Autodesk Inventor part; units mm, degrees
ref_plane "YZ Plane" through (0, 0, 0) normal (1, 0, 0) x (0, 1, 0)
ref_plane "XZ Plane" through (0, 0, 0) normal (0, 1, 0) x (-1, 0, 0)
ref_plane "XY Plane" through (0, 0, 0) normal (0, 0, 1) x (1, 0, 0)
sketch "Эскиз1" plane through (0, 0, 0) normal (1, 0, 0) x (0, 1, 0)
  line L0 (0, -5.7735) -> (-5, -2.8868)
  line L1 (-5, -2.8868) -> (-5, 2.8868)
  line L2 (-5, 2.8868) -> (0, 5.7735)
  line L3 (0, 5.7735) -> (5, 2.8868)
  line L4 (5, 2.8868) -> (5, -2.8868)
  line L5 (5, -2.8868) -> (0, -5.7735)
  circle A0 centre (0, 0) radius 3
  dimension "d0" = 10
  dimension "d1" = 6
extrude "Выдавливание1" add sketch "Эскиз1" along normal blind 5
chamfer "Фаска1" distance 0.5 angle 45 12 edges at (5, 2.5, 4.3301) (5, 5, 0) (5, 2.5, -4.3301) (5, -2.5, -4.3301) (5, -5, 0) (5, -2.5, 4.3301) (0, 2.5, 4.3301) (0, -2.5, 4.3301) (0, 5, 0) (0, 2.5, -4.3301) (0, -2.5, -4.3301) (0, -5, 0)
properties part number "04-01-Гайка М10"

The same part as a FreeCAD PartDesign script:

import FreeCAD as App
import Part
import Sketcher
from FreeCAD import Vector
Q = App.Units.Quantity


def edges_at(feature, points):
    """Names of the edges that pass closest to the given points."""
    edges = feature.Shape.Edges
    near = lambda p: min(range(len(edges)), key=lambda i: edges[i].distToShape(Part.Vertex(*p))[0])
    return sorted({f"Edge{near(p) + 1}" for p in points})

doc = App.newDocument("Part")
body = doc.addObject("PartDesign::Body", "Body")

# Sketch on YZ plane
sketch1 = doc.addObject("Sketcher::SketchObject", "Sketch")
body.addObject(sketch1)
sketch1.AttachmentSupport = (doc.YZ_Plane, [""])
sketch1.MapMode = "FlatFace"
sketch1.addGeometry([
    Part.LineSegment(Vector(-5, -2.9, 0), Vector(0, -5.8, 0)),  # 0
    Part.LineSegment(Vector(0, -5.8, 0), Vector(5, -2.9, 0)),  # 1
    Part.LineSegment(Vector(5, -2.9, 0), Vector(5, 2.9, 0)),  # 2
    Part.LineSegment(Vector(5, 2.9, 0), Vector(0, 5.8, 0)),  # 3
    Part.LineSegment(Vector(0, 5.8, 0), Vector(-5, 2.9, 0)),  # 4
    Part.LineSegment(Vector(-5, 2.9, 0), Vector(-5, -2.9, 0)),  # 5
    Part.Circle(Vector(0, 0, 0), Vector(0, 0, 1), 3),  # 6
], False)
sketch1.addConstraint([
    Sketcher.Constraint("Coincident", 0, 2, 1, 1),
    Sketcher.Constraint("Coincident", 1, 2, 2, 1),
    Sketcher.Constraint("Coincident", 2, 2, 3, 1),
    Sketcher.Constraint("Coincident", 3, 2, 4, 1),
    Sketcher.Constraint("Coincident", 4, 2, 5, 1),
    Sketcher.Constraint("Coincident", 5, 2, 0, 1),
    Sketcher.Constraint("Vertical", 2),
    Sketcher.Constraint("Vertical", 5),
    Sketcher.Constraint("Coincident", 6, 3, -1, 1),
    Sketcher.Constraint("Symmetric", 0, 2, 3, 2, -1, 1),
    Sketcher.Constraint("Symmetric", 1, 2, 4, 2, -1, 1),
    Sketcher.Constraint("PointOnObject", 0, 2, -2),
    Sketcher.Constraint("Parallel", 0, 3),
    Sketcher.Constraint("Horizontal", 2, 2, 4, 2),
    Sketcher.Constraint("Diameter", 6, Q("6 mm")),
    Sketcher.Constraint("DistanceX", 4, 2, 2, 2, Q("10 mm")),
    Sketcher.Constraint("Angle", 0, Q("-29.9996 deg")),
    Sketcher.Constraint("DistanceY", 2, 1, 2, 2, Q("5.7736 mm")),
])
pad1 = doc.addObject("PartDesign::Pad", "Pad")
body.addObject(pad1)
pad1.Profile = sketch1
pad1.Length = 5
doc.recompute()

chamfer = doc.addObject("PartDesign::Chamfer", "Chamfer")
body.addObject(chamfer)
chamfer.Base = (pad1, edges_at(pad1, [
    (5, 2.5, 4.33),
    (5, 5, 0),
    (5, 2.5, -4.33),
    (5, -2.5, -4.33),
    (5, -5, 0),
    (5, -2.5, 4.33),
    (0, 2.5, 4.33),
    (0, -2.5, 4.33),
    (0, 5, 0),
    (0, 2.5, -4.33),
    (0, -2.5, -4.33),
    (0, -5, 0),
]))
chamfer.Size = 0.5

doc.recompute()
